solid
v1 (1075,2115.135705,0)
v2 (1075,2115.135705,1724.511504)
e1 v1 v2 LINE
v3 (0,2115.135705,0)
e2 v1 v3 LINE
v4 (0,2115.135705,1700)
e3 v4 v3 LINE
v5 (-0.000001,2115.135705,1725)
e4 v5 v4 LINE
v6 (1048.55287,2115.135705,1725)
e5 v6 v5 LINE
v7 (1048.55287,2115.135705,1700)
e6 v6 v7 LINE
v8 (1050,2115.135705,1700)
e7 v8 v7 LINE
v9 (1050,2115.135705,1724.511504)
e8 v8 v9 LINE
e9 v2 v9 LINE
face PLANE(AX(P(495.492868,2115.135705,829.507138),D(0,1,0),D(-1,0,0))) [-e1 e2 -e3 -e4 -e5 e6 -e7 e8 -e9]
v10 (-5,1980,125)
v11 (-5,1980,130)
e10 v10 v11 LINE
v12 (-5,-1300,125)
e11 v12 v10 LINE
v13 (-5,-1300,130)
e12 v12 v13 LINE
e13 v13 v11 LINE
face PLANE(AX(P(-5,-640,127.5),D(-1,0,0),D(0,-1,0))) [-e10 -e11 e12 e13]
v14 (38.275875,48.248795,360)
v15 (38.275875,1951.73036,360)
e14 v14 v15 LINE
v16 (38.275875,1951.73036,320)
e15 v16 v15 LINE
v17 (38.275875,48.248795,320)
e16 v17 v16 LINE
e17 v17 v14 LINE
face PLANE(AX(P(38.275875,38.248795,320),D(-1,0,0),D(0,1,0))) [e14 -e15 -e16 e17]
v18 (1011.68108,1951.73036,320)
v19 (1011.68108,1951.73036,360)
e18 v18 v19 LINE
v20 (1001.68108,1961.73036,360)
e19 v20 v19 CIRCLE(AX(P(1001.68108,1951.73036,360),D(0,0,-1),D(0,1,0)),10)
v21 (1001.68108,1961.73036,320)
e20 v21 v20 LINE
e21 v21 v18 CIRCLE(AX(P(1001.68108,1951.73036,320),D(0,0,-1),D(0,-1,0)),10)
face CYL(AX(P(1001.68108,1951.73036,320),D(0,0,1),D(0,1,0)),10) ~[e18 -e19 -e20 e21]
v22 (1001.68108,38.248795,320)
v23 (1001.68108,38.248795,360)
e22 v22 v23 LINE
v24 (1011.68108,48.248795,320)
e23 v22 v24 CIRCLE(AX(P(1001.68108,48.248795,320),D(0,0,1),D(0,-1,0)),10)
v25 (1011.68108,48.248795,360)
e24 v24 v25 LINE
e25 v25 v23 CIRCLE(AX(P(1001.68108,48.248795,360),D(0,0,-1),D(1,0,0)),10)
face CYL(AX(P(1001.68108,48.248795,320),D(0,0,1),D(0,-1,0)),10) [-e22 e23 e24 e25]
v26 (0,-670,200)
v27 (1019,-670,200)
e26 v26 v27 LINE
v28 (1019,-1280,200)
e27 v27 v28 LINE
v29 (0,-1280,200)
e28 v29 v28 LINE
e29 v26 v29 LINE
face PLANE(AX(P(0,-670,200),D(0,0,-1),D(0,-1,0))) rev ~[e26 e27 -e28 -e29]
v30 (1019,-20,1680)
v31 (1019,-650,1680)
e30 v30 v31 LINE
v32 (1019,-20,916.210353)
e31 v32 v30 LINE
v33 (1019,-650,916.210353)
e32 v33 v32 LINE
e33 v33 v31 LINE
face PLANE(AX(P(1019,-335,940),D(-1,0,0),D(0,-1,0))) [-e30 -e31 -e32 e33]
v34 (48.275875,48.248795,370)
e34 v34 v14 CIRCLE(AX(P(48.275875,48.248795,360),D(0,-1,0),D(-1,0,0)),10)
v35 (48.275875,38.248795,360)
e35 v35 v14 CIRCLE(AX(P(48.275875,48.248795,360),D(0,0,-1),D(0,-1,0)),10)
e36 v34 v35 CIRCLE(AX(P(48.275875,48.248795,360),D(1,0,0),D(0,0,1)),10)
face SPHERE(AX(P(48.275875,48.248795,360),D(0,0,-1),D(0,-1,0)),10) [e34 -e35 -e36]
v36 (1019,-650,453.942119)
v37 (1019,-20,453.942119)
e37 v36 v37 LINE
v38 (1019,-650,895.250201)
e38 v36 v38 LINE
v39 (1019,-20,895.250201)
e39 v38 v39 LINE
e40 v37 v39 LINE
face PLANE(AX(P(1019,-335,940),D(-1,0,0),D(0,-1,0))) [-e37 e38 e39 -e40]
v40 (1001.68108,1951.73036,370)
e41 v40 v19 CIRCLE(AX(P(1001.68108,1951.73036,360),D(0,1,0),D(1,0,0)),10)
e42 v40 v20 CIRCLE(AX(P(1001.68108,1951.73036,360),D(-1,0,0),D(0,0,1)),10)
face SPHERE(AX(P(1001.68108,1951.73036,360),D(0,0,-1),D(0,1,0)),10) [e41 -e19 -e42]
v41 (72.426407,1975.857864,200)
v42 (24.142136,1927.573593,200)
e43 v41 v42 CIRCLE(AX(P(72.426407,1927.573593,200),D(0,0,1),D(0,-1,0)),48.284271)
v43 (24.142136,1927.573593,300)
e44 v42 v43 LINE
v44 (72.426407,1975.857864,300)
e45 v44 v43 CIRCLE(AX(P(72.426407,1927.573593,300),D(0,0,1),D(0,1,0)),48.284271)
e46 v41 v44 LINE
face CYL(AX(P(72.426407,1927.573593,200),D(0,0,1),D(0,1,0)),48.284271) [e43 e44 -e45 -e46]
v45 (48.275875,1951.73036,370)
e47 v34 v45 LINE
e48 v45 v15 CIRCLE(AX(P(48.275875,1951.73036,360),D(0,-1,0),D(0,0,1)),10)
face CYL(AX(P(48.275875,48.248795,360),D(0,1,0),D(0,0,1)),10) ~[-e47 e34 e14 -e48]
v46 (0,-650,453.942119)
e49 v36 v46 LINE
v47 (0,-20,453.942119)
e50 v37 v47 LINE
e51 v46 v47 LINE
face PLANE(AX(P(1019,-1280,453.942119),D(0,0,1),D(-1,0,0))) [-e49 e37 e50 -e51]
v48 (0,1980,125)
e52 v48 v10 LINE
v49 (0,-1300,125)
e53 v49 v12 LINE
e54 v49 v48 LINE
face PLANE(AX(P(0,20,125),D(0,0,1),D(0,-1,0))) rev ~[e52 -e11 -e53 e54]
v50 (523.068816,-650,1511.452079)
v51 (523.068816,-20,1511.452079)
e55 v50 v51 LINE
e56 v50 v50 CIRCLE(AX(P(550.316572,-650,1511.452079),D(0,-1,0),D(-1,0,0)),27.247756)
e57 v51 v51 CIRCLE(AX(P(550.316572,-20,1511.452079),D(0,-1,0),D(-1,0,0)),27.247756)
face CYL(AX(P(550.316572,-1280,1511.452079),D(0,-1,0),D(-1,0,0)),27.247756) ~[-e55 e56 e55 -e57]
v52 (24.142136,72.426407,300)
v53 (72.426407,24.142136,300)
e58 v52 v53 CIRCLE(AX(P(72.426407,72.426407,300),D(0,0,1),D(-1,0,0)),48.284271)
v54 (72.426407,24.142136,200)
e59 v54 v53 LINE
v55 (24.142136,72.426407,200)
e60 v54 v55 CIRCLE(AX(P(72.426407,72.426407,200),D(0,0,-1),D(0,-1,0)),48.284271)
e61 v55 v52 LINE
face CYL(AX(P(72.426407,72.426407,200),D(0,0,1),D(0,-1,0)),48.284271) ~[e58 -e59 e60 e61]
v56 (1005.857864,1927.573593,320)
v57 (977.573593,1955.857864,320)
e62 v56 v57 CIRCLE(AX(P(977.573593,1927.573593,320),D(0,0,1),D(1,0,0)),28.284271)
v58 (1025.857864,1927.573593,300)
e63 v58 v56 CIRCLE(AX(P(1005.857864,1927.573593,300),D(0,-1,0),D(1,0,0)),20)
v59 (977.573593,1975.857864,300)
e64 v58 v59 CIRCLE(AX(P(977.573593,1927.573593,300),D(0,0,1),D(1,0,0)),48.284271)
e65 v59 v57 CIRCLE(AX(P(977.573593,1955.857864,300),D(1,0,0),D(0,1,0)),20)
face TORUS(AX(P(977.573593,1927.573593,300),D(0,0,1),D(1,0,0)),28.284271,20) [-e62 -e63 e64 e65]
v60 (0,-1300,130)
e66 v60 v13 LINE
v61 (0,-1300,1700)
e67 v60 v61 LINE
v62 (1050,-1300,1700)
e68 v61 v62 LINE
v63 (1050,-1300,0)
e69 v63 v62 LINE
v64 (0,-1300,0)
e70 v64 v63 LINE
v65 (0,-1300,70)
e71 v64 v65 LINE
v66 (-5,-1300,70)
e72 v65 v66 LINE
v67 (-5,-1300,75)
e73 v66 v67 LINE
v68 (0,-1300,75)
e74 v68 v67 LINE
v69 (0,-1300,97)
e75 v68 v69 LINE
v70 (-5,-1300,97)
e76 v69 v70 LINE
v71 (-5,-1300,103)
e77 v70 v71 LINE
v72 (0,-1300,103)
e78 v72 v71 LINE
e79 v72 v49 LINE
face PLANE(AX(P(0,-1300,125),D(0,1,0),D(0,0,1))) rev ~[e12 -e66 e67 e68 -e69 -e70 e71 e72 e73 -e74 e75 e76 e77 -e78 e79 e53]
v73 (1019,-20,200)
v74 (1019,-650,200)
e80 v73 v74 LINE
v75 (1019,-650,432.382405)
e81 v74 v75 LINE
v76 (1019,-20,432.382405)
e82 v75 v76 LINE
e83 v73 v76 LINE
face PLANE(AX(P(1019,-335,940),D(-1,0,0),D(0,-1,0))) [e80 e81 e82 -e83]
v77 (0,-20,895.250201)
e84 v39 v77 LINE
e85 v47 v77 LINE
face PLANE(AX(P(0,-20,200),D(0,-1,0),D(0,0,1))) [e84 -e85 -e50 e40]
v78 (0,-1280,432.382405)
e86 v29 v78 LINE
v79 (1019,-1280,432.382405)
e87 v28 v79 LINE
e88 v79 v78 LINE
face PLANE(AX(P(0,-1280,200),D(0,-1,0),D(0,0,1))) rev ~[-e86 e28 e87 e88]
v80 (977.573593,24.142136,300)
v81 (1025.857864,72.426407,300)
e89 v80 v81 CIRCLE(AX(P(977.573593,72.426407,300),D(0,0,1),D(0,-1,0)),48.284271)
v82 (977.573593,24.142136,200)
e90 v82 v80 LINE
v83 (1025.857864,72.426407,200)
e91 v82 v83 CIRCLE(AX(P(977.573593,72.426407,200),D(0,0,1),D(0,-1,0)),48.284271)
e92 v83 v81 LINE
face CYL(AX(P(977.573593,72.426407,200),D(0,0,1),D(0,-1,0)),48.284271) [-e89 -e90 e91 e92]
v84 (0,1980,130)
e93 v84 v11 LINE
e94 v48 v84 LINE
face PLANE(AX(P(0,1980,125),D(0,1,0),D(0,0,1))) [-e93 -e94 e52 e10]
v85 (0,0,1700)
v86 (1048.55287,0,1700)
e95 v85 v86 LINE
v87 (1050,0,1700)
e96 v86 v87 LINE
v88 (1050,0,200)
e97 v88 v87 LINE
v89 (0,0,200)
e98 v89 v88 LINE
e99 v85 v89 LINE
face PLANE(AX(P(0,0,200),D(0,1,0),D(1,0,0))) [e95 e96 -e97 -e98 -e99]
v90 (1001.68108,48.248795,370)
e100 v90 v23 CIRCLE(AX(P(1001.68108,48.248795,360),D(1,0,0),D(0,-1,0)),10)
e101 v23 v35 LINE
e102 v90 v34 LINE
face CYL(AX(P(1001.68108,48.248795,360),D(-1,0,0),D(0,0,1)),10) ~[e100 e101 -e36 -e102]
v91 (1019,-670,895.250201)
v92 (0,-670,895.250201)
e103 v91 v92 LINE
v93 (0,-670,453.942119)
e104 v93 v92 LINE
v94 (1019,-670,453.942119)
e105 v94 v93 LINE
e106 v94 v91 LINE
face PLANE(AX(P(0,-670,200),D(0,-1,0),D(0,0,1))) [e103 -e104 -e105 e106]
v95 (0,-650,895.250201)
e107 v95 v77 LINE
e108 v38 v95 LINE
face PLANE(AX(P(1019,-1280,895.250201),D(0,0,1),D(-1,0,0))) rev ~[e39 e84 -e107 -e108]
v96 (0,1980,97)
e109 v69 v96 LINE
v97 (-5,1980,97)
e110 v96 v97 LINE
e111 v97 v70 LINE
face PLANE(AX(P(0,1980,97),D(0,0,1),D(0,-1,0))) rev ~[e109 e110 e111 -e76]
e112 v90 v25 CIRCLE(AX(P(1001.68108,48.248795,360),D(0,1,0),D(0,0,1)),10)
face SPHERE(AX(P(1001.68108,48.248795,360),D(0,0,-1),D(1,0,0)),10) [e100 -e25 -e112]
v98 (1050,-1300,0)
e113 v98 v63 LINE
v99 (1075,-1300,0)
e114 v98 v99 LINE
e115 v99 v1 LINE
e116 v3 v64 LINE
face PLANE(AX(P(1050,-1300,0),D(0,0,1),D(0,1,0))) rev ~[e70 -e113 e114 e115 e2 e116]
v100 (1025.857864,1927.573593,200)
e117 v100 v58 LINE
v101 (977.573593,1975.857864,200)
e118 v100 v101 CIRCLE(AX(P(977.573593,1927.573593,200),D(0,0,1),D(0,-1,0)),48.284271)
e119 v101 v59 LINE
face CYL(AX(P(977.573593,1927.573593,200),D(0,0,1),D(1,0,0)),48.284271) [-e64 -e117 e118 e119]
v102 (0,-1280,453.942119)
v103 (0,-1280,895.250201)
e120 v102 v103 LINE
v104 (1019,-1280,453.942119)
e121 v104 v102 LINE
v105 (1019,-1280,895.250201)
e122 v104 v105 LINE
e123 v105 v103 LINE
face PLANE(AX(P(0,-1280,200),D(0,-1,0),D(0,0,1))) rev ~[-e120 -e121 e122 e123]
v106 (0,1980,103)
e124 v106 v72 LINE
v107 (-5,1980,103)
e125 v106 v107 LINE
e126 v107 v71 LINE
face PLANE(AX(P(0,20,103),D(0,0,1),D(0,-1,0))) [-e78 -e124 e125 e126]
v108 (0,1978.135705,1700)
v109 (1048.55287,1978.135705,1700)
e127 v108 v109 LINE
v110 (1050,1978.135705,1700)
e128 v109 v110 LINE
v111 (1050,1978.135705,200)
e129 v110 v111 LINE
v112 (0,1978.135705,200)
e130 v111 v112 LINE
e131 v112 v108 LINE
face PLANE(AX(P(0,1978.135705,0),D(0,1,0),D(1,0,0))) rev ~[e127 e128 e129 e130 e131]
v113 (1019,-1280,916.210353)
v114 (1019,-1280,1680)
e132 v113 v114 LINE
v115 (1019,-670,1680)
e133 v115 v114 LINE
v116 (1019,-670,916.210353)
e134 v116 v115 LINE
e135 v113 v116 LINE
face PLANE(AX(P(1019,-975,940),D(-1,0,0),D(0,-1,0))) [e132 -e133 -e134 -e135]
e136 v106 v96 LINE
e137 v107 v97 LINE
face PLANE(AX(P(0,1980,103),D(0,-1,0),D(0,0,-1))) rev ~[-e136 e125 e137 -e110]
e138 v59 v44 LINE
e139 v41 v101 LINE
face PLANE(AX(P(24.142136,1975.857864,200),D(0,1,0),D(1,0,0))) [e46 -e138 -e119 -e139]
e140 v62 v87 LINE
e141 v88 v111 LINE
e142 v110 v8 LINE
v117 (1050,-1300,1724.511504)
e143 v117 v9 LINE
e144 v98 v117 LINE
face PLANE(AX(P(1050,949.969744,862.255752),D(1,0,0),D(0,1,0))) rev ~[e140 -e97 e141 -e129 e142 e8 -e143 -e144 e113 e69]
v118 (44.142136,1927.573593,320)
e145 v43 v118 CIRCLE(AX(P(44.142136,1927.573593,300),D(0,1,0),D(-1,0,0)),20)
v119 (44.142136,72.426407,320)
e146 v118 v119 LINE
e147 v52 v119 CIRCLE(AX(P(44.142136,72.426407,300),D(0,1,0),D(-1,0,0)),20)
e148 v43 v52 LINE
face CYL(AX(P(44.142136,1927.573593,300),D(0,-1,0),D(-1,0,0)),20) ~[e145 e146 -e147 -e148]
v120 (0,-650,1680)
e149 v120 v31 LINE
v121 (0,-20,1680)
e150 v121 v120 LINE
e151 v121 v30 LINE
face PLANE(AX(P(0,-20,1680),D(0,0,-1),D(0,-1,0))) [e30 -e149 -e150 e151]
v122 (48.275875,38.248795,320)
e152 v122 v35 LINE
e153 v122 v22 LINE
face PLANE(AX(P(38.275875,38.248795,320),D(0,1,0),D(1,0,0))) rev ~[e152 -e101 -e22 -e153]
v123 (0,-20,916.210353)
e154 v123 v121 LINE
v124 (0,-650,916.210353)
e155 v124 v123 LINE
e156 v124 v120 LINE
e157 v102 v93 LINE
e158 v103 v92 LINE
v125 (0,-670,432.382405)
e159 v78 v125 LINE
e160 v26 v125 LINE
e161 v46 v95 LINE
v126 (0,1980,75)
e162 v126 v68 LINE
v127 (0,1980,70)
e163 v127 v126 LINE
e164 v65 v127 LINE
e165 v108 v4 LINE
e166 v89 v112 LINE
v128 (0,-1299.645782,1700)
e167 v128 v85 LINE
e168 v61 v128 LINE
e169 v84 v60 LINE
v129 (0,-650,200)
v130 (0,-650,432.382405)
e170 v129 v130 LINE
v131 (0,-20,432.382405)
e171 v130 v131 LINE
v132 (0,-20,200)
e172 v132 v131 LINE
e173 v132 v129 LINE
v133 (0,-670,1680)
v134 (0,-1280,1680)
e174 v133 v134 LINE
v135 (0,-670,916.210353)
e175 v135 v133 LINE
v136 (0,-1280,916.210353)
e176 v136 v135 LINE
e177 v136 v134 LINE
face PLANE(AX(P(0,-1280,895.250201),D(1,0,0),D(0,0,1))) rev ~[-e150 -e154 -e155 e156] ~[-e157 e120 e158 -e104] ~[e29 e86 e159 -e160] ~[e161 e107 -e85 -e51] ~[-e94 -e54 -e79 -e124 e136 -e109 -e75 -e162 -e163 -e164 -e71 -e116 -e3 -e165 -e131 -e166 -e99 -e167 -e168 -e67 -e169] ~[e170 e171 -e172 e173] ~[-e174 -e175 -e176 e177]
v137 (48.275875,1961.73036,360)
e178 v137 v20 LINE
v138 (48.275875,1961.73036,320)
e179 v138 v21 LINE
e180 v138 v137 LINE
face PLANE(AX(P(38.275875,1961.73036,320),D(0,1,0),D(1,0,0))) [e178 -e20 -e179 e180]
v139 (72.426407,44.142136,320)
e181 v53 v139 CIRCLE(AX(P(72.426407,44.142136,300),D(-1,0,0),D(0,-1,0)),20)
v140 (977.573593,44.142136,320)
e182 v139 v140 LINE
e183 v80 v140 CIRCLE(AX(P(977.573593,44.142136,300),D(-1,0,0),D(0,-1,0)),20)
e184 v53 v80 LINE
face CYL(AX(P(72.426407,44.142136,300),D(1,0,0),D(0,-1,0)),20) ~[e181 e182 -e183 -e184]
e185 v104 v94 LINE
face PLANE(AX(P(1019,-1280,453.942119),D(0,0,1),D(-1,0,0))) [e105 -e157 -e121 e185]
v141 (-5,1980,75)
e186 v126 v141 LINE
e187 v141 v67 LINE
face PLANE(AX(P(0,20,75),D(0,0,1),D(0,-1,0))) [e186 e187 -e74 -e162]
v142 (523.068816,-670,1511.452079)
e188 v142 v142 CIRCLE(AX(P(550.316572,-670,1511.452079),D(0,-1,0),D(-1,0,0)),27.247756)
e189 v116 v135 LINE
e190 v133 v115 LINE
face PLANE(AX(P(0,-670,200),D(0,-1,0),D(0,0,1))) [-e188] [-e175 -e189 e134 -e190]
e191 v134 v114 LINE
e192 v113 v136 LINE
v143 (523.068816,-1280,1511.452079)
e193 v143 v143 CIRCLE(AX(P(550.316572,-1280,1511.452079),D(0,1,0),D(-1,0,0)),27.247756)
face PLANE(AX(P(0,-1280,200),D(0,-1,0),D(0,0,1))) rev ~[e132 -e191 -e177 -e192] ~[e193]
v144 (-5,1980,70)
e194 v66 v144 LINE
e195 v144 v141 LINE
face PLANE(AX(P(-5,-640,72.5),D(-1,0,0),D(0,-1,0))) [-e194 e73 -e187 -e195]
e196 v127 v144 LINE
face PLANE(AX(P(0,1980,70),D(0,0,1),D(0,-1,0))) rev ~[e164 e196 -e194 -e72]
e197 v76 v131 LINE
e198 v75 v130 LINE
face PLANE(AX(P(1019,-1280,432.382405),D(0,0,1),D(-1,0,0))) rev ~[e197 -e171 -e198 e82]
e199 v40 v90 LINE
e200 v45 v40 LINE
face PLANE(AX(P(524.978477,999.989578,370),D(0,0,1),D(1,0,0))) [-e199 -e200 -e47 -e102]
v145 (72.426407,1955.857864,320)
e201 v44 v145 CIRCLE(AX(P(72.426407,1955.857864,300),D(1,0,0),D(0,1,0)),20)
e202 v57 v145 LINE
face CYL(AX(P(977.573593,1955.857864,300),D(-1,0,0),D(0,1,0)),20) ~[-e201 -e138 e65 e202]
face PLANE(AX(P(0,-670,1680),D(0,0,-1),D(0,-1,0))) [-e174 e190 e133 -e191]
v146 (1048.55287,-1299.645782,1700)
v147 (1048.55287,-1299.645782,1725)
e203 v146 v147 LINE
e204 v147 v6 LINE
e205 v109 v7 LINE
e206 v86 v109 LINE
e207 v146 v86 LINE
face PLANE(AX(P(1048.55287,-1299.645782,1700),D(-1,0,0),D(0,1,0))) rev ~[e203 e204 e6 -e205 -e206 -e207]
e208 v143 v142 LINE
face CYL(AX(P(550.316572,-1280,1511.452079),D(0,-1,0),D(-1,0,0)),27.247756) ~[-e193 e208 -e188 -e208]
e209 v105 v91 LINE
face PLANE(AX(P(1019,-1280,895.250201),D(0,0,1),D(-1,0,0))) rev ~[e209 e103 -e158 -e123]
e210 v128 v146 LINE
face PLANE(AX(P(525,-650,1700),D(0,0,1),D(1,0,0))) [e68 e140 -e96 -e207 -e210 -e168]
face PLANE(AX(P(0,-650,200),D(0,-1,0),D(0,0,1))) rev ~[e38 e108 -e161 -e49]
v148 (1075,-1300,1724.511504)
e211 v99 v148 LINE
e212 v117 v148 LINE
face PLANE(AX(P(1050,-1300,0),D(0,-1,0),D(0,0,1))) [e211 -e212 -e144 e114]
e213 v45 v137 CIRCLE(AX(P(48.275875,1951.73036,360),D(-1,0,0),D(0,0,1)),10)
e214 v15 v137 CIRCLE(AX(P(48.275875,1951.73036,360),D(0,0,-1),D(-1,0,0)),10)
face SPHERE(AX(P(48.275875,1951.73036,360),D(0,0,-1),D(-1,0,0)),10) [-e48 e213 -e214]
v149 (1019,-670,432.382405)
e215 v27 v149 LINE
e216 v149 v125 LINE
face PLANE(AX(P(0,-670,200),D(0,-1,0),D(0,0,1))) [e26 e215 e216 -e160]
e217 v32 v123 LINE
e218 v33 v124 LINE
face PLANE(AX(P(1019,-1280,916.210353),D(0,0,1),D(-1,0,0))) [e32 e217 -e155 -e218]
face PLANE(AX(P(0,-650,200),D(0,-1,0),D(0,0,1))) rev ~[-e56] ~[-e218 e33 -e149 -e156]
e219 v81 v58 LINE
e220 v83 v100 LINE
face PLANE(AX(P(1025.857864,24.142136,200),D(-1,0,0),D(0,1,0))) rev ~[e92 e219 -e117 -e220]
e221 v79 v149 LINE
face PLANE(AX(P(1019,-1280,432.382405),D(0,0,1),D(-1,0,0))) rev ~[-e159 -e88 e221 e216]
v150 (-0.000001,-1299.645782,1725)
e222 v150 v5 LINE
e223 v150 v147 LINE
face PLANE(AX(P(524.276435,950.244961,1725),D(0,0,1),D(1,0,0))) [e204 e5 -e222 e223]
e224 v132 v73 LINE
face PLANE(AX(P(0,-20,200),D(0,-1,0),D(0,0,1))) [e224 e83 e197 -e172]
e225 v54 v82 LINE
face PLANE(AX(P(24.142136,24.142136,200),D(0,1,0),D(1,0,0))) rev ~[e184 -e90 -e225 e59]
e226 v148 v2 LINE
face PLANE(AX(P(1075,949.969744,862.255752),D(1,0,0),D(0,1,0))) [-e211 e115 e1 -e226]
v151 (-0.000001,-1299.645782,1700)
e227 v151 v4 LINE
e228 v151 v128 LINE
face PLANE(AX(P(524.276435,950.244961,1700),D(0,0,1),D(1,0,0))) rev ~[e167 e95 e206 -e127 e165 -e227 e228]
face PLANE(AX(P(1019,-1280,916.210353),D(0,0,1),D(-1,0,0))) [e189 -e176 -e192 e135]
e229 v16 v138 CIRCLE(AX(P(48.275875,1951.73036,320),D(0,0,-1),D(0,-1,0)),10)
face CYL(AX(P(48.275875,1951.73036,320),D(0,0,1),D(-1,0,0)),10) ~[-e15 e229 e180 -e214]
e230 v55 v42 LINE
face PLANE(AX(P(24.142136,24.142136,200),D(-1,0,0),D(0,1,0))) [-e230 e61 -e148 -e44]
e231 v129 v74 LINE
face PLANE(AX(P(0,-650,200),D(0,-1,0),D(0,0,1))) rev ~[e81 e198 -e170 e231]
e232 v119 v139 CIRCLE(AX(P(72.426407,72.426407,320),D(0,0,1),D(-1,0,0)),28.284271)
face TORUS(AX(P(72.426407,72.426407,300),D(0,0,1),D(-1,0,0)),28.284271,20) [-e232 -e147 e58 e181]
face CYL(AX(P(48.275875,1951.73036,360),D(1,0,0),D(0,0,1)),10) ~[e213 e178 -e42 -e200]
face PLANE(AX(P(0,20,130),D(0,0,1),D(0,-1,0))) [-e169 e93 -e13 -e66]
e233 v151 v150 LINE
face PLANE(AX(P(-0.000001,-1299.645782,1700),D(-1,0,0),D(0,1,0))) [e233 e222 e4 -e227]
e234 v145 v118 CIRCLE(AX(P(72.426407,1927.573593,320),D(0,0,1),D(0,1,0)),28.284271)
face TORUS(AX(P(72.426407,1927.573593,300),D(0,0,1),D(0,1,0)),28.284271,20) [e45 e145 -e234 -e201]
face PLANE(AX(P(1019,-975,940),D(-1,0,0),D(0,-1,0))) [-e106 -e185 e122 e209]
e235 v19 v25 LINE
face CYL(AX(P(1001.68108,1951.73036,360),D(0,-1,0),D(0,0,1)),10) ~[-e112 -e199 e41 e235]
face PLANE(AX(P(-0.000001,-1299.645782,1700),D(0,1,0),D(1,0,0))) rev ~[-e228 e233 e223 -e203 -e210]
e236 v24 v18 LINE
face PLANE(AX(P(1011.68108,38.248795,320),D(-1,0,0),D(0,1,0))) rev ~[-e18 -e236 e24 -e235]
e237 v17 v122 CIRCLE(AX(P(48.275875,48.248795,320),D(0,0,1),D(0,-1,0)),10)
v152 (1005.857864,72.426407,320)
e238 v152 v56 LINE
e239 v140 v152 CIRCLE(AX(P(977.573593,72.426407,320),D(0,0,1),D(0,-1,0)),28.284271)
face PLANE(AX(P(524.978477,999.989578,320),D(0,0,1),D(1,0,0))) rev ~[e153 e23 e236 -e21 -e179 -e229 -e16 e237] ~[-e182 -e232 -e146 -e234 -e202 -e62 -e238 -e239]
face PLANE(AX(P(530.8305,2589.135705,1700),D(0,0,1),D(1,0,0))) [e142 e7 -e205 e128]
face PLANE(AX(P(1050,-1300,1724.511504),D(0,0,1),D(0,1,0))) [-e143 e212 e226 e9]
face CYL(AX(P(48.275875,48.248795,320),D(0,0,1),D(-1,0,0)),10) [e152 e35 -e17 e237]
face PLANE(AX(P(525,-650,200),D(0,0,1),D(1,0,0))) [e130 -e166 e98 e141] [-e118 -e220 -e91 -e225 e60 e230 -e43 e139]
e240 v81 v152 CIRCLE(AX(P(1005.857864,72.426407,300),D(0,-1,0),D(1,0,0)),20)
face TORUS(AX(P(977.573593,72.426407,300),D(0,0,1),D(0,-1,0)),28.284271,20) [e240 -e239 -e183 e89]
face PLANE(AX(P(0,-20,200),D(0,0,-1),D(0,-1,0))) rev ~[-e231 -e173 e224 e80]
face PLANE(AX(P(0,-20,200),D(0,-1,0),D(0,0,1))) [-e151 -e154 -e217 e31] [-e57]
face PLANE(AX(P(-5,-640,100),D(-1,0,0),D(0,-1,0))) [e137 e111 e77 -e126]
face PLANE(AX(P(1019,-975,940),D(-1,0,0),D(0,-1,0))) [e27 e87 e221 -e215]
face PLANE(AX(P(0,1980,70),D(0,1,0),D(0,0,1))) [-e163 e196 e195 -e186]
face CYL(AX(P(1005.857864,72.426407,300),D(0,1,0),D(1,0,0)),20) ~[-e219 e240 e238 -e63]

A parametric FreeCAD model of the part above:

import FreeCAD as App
import Part
import Sketcher
Q = App.Units.Quantity


def edges_at(feature, points):
    """Names of the edges that pass closest to the given points."""
    edges = feature.Shape.Edges
    near = lambda p: min(range(len(edges)), key=lambda i: edges[i].distToShape(Part.Vertex(*p))[0])
    return sorted({f"Edge{near(p) + 1}" for p in points})

doc = App.newDocument("Part")
body = doc.addObject("PartDesign::Body", "Body")

# Sketch on XY plane
sketch1 = body.newObject("Sketcher::SketchObject", "Sketch")
sketch1.AttachmentSupport = (doc.getObject("XY_Plane"), [""])
sketch1.MapMode = "FlatFace"
sketch1.addGeometry([
    Part.LineSegment(App.Vector(0, 2000, 0), App.Vector(0, 0, 0)),
    Part.LineSegment(App.Vector(0, 0, 0), App.Vector(1050, 0, 0)),
    Part.LineSegment(App.Vector(1050, 0, 0), App.Vector(1050, 2000, 0)),
    Part.LineSegment(App.Vector(1050, 2000, 0), App.Vector(0, 2000, 0)),
], False)
sketch1.addConstraint([
    Sketcher.Constraint("Coincident", 0, 2, 1, 1),
    Sketcher.Constraint("Coincident", 1, 2, 2, 1),
    Sketcher.Constraint("Coincident", 2, 2, 3, 1),
    Sketcher.Constraint("Coincident", 3, 2, 0, 1),
    Sketcher.Constraint("Vertical", 0),
    Sketcher.Constraint("Horizontal", 1),
    Sketcher.Constraint("Vertical", 2),
    Sketcher.Constraint("Horizontal", 3),
    Sketcher.Constraint("Coincident", 0, 2, -1, 1),
    Sketcher.Constraint("DistanceX", 1, 1, 1, 2, Q("1050 mm")),
    Sketcher.Constraint("DistanceY", 0, 2, 0, 1, Q("2000 mm")),
])
pad1 = body.newObject("PartDesign::Pad", "Pad")
pad1.Profile = sketch1
pad1.Length = 200
doc.recompute()

chamfer = body.newObject("PartDesign::Chamfer", "Chamfer")
chamfer.Base = (pad1, edges_at(pad1, [(1050, 2000, 100), (0, 2000, 100)]))
chamfer.Size = 20

# Sketch on XY plane
sketch2 = body.newObject("Sketcher::SketchObject", "Sketch001")
sketch2.AttachmentSupport = (doc.getObject("XY_Plane"), [""])
sketch2.MapMode = "FlatFace"
sketch2.AttachmentOffset = App.Placement(App.Vector(0, 0, 200), App.Rotation())
sketch2.addGeometry([
    Part.LineSegment(App.Vector(24, 1976, 0), App.Vector(24, 24, 0)),
    Part.LineSegment(App.Vector(24, 24, 0), App.Vector(1026, 24, 0)),
    Part.LineSegment(App.Vector(1026, 24, 0), App.Vector(1026, 1976, 0)),
    Part.LineSegment(App.Vector(1026, 1976, 0), App.Vector(24, 1976, 0)),
], False)
sketch2.addConstraint([
    Sketcher.Constraint("Coincident", 0, 2, 1, 1),
    Sketcher.Constraint("Coincident", 1, 2, 2, 1),
    Sketcher.Constraint("Coincident", 2, 2, 3, 1),
    Sketcher.Constraint("Coincident", 3, 2, 0, 1),
    Sketcher.Constraint("Vertical", 0),
    Sketcher.Constraint("Horizontal", 1),
    Sketcher.Constraint("Vertical", 2),
    Sketcher.Constraint("Horizontal", 3),
    Sketcher.Constraint("DistanceX", 1, 1, 1, 2, Q("1001.715728 mm")),
    Sketcher.Constraint("DistanceY", 0, 2, 0, 1, Q("1951.715728 mm")),
    Sketcher.Constraint("DistanceX", -1, 1, 0, 2, Q("24.142136 mm")),
    Sketcher.Constraint("DistanceY", -1, 1, 0, 2, Q("24.142136 mm")),
])
pad2 = body.newObject("PartDesign::Pad", "Pad001")
pad2.Profile = sketch2
pad2.Length = 120
doc.recompute()

fillet = body.newObject("PartDesign::Fillet", "Fillet")
fillet.Base = (pad2, edges_at(pad2, [
    (1025.858, 24.142, 260),
    (1025.858, 1975.858, 260),
    (24.142, 1975.858, 260),
    (24.142, 24.142, 260),
]))
fillet.Radius = 48.284271
doc.recompute()

fillet2 = body.newObject("PartDesign::Fillet", "Fillet001")
fillet2.Base = (fillet, edges_at(fillet, [
    (525, 24.142, 320),
    (38.284, 38.284, 320),
    (1011.716, 38.284, 320),
    (24.142, 1000, 320),
    (1025.858, 1000, 320),
    (38.284, 1961.716, 320),
    (1011.716, 1961.716, 320),
    (525, 1975.858, 320),
]))
fillet2.Radius = 20

# Sketch on XY plane
sketch3 = body.newObject("Sketcher::SketchObject", "Sketch002")
sketch3.AttachmentSupport = (doc.getObject("XY_Plane"), [""])
sketch3.MapMode = "FlatFace"
sketch3.AttachmentOffset = App.Placement(App.Vector(0, 0, 320), App.Rotation())
sketch3.addGeometry([
    Part.LineSegment(App.Vector(38, 1962, 0), App.Vector(38, 38, 0)),
    Part.LineSegment(App.Vector(38, 38, 0), App.Vector(1012, 38, 0)),
    Part.LineSegment(App.Vector(1012, 38, 0), App.Vector(1012, 1962, 0)),
    Part.LineSegment(App.Vector(1012, 1962, 0), App.Vector(38, 1962, 0)),
], False)
sketch3.addConstraint([
    Sketcher.Constraint("Coincident", 0, 2, 1, 1),
    Sketcher.Constraint("Coincident", 1, 2, 2, 1),
    Sketcher.Constraint("Coincident", 2, 2, 3, 1),
    Sketcher.Constraint("Coincident", 3, 2, 0, 1),
    Sketcher.Constraint("Vertical", 0),
    Sketcher.Constraint("Horizontal", 1),
    Sketcher.Constraint("Vertical", 2),
    Sketcher.Constraint("Horizontal", 3),
    Sketcher.Constraint("DistanceX", 1, 1, 1, 2, Q("973.405205 mm")),
    Sketcher.Constraint("DistanceY", 0, 2, 0, 1, Q("1923.481565 mm")),
    Sketcher.Constraint("DistanceX", -1, 1, 1, 2, Q("1011.68108 mm")),
    Sketcher.Constraint("DistanceY", -1, 1, 2, 2, Q("1961.73036 mm")),
])
pad3 = body.newObject("PartDesign::Pad", "Pad002")
pad3.Profile = sketch3
pad3.Length = 50
doc.recompute()

fillet3 = body.newObject("PartDesign::Fillet", "Fillet002")
fillet3.Base = (pad3, edges_at(pad3, [
    (1011.681, 38.249, 345),
    (1011.681, 1961.73, 345),
    (38.276, 1961.73, 345),
    (38.276, 38.249, 345),
]))
fillet3.Radius = 10
doc.recompute()

fillet4 = body.newObject("PartDesign::Fillet", "Fillet003")
fillet4.Base = (fillet3, edges_at(fillet3, [
    (524.978, 1961.73, 370),
    (1008.752, 1958.801, 370),
    (41.205, 1958.801, 370),
    (1011.681, 999.99, 370),
    (38.276, 999.99, 370),
    (1008.752, 41.178, 370),
    (41.205, 41.178, 370),
    (524.978, 38.249, 370),
]))
fillet4.Radius = 10

# Sketch on YZ plane
sketch4 = body.newObject("Sketcher::SketchObject", "Sketch003")
sketch4.AttachmentSupport = (doc.getObject("YZ_Plane"), [""])
sketch4.MapMode = "FlatFace"
sketch4.addGeometry([
    Part.LineSegment(App.Vector(1980, 75, 0), App.Vector(1980, 70, 0)),  # 0
    Part.LineSegment(App.Vector(1980, 70, 0), App.Vector(20, 70, 0)),  # 1
    Part.LineSegment(App.Vector(20, 70, 0), App.Vector(20, 75, 0)),  # 2
    Part.LineSegment(App.Vector(20, 75, 0), App.Vector(1980, 75, 0)),  # 3
    Part.LineSegment(App.Vector(1980, 130, 0), App.Vector(1980, 125, 0)),  # 4
    Part.LineSegment(App.Vector(1980, 125, 0), App.Vector(20, 125, 0)),  # 5
    Part.LineSegment(App.Vector(20, 125, 0), App.Vector(20, 130, 0)),  # 6
    Part.LineSegment(App.Vector(20, 130, 0), App.Vector(1980, 130, 0)),  # 7
    Part.LineSegment(App.Vector(1980, 97, 0), App.Vector(20, 97, 0)),  # 8
    Part.LineSegment(App.Vector(20, 97, 0), App.Vector(20, 103, 0)),  # 9
    Part.LineSegment(App.Vector(20, 103, 0), App.Vector(1980, 103, 0)),  # 10
    Part.LineSegment(App.Vector(1980, 103, 0), App.Vector(1980, 97, 0)),  # 11
], False)
sketch4.addConstraint([
    Sketcher.Constraint("Coincident", 0, 2, 1, 1),
    Sketcher.Constraint("Coincident", 1, 2, 2, 1),
    Sketcher.Constraint("Coincident", 2, 2, 3, 1),
    Sketcher.Constraint("Coincident", 3, 2, 0, 1),
    Sketcher.Constraint("Coincident", 4, 2, 5, 1),
    Sketcher.Constraint("Coincident", 5, 2, 6, 1),
    Sketcher.Constraint("Coincident", 6, 2, 7, 1),
    Sketcher.Constraint("Coincident", 7, 2, 4, 1),
    Sketcher.Constraint("Coincident", 8, 2, 9, 1),
    Sketcher.Constraint("Coincident", 9, 2, 10, 1),
    Sketcher.Constraint("Coincident", 10, 2, 11, 1),
    Sketcher.Constraint("Coincident", 11, 2, 8, 1),
    Sketcher.Constraint("Vertical", 0),
    Sketcher.Constraint("Horizontal", 1),
    Sketcher.Constraint("Vertical", 2),
    Sketcher.Constraint("Horizontal", 3),
    Sketcher.Constraint("Vertical", 4),
    Sketcher.Constraint("Horizontal", 5),
    Sketcher.Constraint("Vertical", 6),
    Sketcher.Constraint("Horizontal", 7),
    Sketcher.Constraint("Horizontal", 8),
    Sketcher.Constraint("Vertical", 9),
    Sketcher.Constraint("Horizontal", 10),
    Sketcher.Constraint("Vertical", 11),
    Sketcher.Constraint("Vertical", 3, 2, 4, 2),
    Sketcher.Constraint("Vertical", 2, 2, 5, 2),
    Sketcher.Constraint("Vertical", 6, 2, 8, 2),
    Sketcher.Constraint("Vertical", 7, 2, 10, 2),
    Sketcher.Constraint("Equal", 2, 4),
    Sketcher.Constraint("DistanceX", 1, 2, 1, 1, Q("1960 mm")),
    Sketcher.Constraint("DistanceY", 0, 2, 0, 1, Q("5 mm")),
    Sketcher.Constraint("DistanceY", 9, 1, 9, 2, Q("6 mm")),
    Sketcher.Constraint("DistanceX", -1, 1, 0, 2, Q("1980 mm")),
    Sketcher.Constraint("DistanceY", -1, 1, 0, 2, Q("70 mm")),
    Sketcher.Constraint("DistanceY", -1, 1, 4, 2, Q("125 mm")),
    Sketcher.Constraint("DistanceY", -1, 1, 8, 2, Q("97 mm")),
])
pad4 = body.newObject("PartDesign::Pad", "Pad003")
pad4.Profile = sketch4
pad4.Length = 5
pad4.Reversed = True

# Sketch on XY plane
sketch5 = body.newObject("Sketcher::SketchObject", "Sketch004")
sketch5.AttachmentSupport = (doc.getObject("XY_Plane"), [""])
sketch5.MapMode = "FlatFace"
sketch5.addGeometry([
    Part.LineSegment(App.Vector(0, 0, 0), App.Vector(0, -1300, 0)),
    Part.LineSegment(App.Vector(0, -1300, 0), App.Vector(1050, -1300, 0)),
    Part.LineSegment(App.Vector(1050, -1300, 0), App.Vector(1050, 0, 0)),
    Part.LineSegment(App.Vector(1050, 0, 0), App.Vector(0, 0, 0)),
], False)
sketch5.addConstraint([
    Sketcher.Constraint("Coincident", 0, 2, 1, 1),
    Sketcher.Constraint("Coincident", 1, 2, 2, 1),
    Sketcher.Constraint("Coincident", 2, 2, 3, 1),
    Sketcher.Constraint("Coincident", 3, 2, 0, 1),
    Sketcher.Constraint("Vertical", 0),
    Sketcher.Constraint("Horizontal", 1),
    Sketcher.Constraint("Vertical", 2),
    Sketcher.Constraint("Horizontal", 3),
    Sketcher.Constraint("Coincident", 3, 2, -1, 1),
    Sketcher.Constraint("DistanceX", 1, 1, 1, 2, Q("1050 mm")),
    Sketcher.Constraint("DistanceY", 0, 2, 0, 1, Q("1300 mm")),
])
pad5 = body.newObject("PartDesign::Pad", "Pad004")
pad5.Profile = sketch5
pad5.Length = 200

# Sketch on XY plane
sketch6 = body.newObject("Sketcher::SketchObject", "Sketch005")
sketch6.AttachmentSupport = (doc.getObject("XY_Plane"), [""])
sketch6.MapMode = "FlatFace"
sketch6.AttachmentOffset = App.Placement(App.Vector(0, 0, 200), App.Rotation())
sketch6.addGeometry([
    Part.LineSegment(App.Vector(0, 0, 0), App.Vector(0, -1300, 0)),
    Part.LineSegment(App.Vector(0, -1300, 0), App.Vector(1050, -1300, 0)),
    Part.LineSegment(App.Vector(1050, -1300, 0), App.Vector(1050, 0, 0)),
    Part.LineSegment(App.Vector(1050, 0, 0), App.Vector(0, 0, 0)),
], False)
sketch6.addConstraint([
    Sketcher.Constraint("Coincident", 0, 2, 1, 1),
    Sketcher.Constraint("Coincident", 1, 2, 2, 1),
    Sketcher.Constraint("Coincident", 2, 2, 3, 1),
    Sketcher.Constraint("Coincident", 3, 2, 0, 1),
    Sketcher.Constraint("Vertical", 0),
    Sketcher.Constraint("Horizontal", 1),
    Sketcher.Constraint("Vertical", 2),
    Sketcher.Constraint("Horizontal", 3),
    Sketcher.Constraint("Coincident", 3, 2, -1, 1),
    Sketcher.Constraint("DistanceX", 1, 1, 1, 2, Q("1050 mm")),
    Sketcher.Constraint("DistanceY", 0, 2, 0, 1, Q("1300 mm")),
])
pad6 = body.newObject("PartDesign::Pad", "Pad005")
pad6.Profile = sketch6
pad6.Length = 1500

# Sketch on YZ plane
sketch7 = body.newObject("Sketcher::SketchObject", "Sketch006")
sketch7.AttachmentSupport = (doc.getObject("YZ_Plane"), [""])
sketch7.MapMode = "FlatFace"
sketch7.addGeometry([
    Part.LineSegment(App.Vector(-670, 1680, 0), App.Vector(-670, 200, 0)),  # 0
    Part.LineSegment(App.Vector(-670, 200, 0), App.Vector(-1280, 200, 0)),  # 1
    Part.LineSegment(App.Vector(-1280, 200, 0), App.Vector(-1280, 1680, 0)),  # 2
    Part.LineSegment(App.Vector(-1280, 1680, 0), App.Vector(-670, 1680, 0)),  # 3
    Part.LineSegment(App.Vector(-20, 1680, 0), App.Vector(-20, 200, 0)),  # 4
    Part.LineSegment(App.Vector(-20, 200, 0), App.Vector(-650, 200, 0)),  # 5
    Part.LineSegment(App.Vector(-650, 200, 0), App.Vector(-650, 1680, 0)),  # 6
    Part.LineSegment(App.Vector(-650, 1680, 0), App.Vector(-20, 1680, 0)),  # 7
], False)
sketch7.addConstraint([
    Sketcher.Constraint("Coincident", 0, 2, 1, 1),
    Sketcher.Constraint("Coincident", 1, 2, 2, 1),
    Sketcher.Constraint("Coincident", 2, 2, 3, 1),
    Sketcher.Constraint("Coincident", 3, 2, 0, 1),
    Sketcher.Constraint("Coincident", 4, 2, 5, 1),
    Sketcher.Constraint("Coincident", 5, 2, 6, 1),
    Sketcher.Constraint("Coincident", 6, 2, 7, 1),
    Sketcher.Constraint("Coincident", 7, 2, 4, 1),
    Sketcher.Constraint("Vertical", 0),
    Sketcher.Constraint("Horizontal", 1),
    Sketcher.Constraint("Vertical", 2),
    Sketcher.Constraint("Horizontal", 3),
    Sketcher.Constraint("Vertical", 4),
    Sketcher.Constraint("Horizontal", 5),
    Sketcher.Constraint("Vertical", 6),
    Sketcher.Constraint("Horizontal", 7),
    Sketcher.Constraint("Horizontal", 1, 2, 4, 2),
    Sketcher.Constraint("Horizontal", 3, 2, 6, 2),
    Sketcher.Constraint("DistanceX", 1, 2, 1, 1, Q("610 mm")),
    Sketcher.Constraint("DistanceX", 5, 2, 5, 1, Q("630 mm")),
    Sketcher.Constraint("DistanceY", 0, 2, 0, 1, Q("1480 mm")),
    Sketcher.Constraint("DistanceX", 0, 2, -1, 1, Q("670 mm")),
    Sketcher.Constraint("DistanceY", -1, 1, 0, 2, Q("200 mm")),
    Sketcher.Constraint("DistanceX", 4, 2, -1, 1, Q("20 mm")),
])
pocket1 = body.newObject("PartDesign::Pocket", "Pocket")
pocket1.Profile = sketch7
pocket1.Length = 1019
pocket1.Reversed = True

# Sketch on YZ plane
sketch8 = body.newObject("Sketcher::SketchObject", "Sketch007")
sketch8.AttachmentSupport = (doc.getObject("YZ_Plane"), [""])
sketch8.MapMode = "FlatFace"
sketch8.addGeometry([
    Part.LineSegment(App.Vector(20, 130, 0), App.Vector(20, 125, 0)),  # 0
    Part.LineSegment(App.Vector(20, 125, 0), App.Vector(-1300, 125, 0)),  # 1
    Part.LineSegment(App.Vector(-1300, 125, 0), App.Vector(-1300, 130, 0)),  # 2
    Part.LineSegment(App.Vector(-1300, 130, 0), App.Vector(20, 130, 0)),  # 3
    Part.LineSegment(App.Vector(20, 103, 0), App.Vector(20, 97, 0)),  # 4
    Part.LineSegment(App.Vector(20, 97, 0), App.Vector(-1300, 97, 0)),  # 5
    Part.LineSegment(App.Vector(-1300, 97, 0), App.Vector(-1300, 103, 0)),  # 6
    Part.LineSegment(App.Vector(-1300, 103, 0), App.Vector(20, 103, 0)),  # 7
    Part.LineSegment(App.Vector(20, 75, 0), App.Vector(20, 70, 0)),  # 8
    Part.LineSegment(App.Vector(20, 70, 0), App.Vector(-1300, 70, 0)),  # 9
    Part.LineSegment(App.Vector(-1300, 70, 0), App.Vector(-1300, 75, 0)),  # 10
    Part.LineSegment(App.Vector(-1300, 75, 0), App.Vector(20, 75, 0)),  # 11
], False)
sketch8.addConstraint([
    Sketcher.Constraint("Coincident", 0, 2, 1, 1),
    Sketcher.Constraint("Coincident", 1, 2, 2, 1),
    Sketcher.Constraint("Coincident", 2, 2, 3, 1),
    Sketcher.Constraint("Coincident", 3, 2, 0, 1),
    Sketcher.Constraint("Coincident", 4, 2, 5, 1),
    Sketcher.Constraint("Coincident", 5, 2, 6, 1),
    Sketcher.Constraint("Coincident", 6, 2, 7, 1),
    Sketcher.Constraint("Coincident", 7, 2, 4, 1),
    Sketcher.Constraint("Coincident", 8, 2, 9, 1),
    Sketcher.Constraint("Coincident", 9, 2, 10, 1),
    Sketcher.Constraint("Coincident", 10, 2, 11, 1),
    Sketcher.Constraint("Coincident", 11, 2, 8, 1),
    Sketcher.Constraint("Vertical", 0),
    Sketcher.Constraint("Horizontal", 1),
    Sketcher.Constraint("Vertical", 2),
    Sketcher.Constraint("Horizontal", 3),
    Sketcher.Constraint("Vertical", 4),
    Sketcher.Constraint("Horizontal", 5),
    Sketcher.Constraint("Vertical", 6),
    Sketcher.Constraint("Horizontal", 7),
    Sketcher.Constraint("Vertical", 8),
    Sketcher.Constraint("Horizontal", 9),
    Sketcher.Constraint("Vertical", 10),
    Sketcher.Constraint("Horizontal", 11),
    Sketcher.Constraint("Vertical", 3, 2, 4, 2),
    Sketcher.Constraint("Vertical", 2, 2, 5, 2),
    Sketcher.Constraint("Vertical", 7, 2, 8, 2),
    Sketcher.Constraint("Vertical", 6, 2, 9, 2),
    Sketcher.Constraint("Equal", 2, 8),
    Sketcher.Constraint("DistanceX", 1, 2, 1, 1, Q("1320 mm")),
    Sketcher.Constraint("DistanceY", 0, 2, 0, 1, Q("5 mm")),
    Sketcher.Constraint("DistanceY", 4, 2, 4, 1, Q("6 mm")),
    Sketcher.Constraint("DistanceX", -1, 1, 0, 2, Q("20 mm")),
    Sketcher.Constraint("DistanceY", -1, 1, 0, 2, Q("125 mm")),
    Sketcher.Constraint("DistanceY", -1, 1, 4, 2, Q("97 mm")),
    Sketcher.Constraint("DistanceY", -1, 1, 8, 2, Q("70 mm")),
])
pad7 = body.newObject("PartDesign::Pad", "Pad006")
pad7.Profile = sketch8
pad7.Length = 5
pad7.Reversed = True

# Sketch on XY plane
sketch9 = body.newObject("Sketcher::SketchObject", "Sketch008")
sketch9.AttachmentSupport = (doc.getObject("XY_Plane"), [""])
sketch9.MapMode = "FlatFace"
sketch9.addGeometry([
    Part.LineSegment(App.Vector(0, 3200, 0), App.Vector(0, 1978, 0)),
    Part.LineSegment(App.Vector(0, 1978, 0), App.Vector(1062, 1978, 0)),
    Part.LineSegment(App.Vector(1062, 1978, 0), App.Vector(1062, 3200, 0)),
    Part.LineSegment(App.Vector(1062, 3200, 0), App.Vector(0, 3200, 0)),
], False)
sketch9.addConstraint([
    Sketcher.Constraint("Coincident", 0, 2, 1, 1),
    Sketcher.Constraint("Coincident", 1, 2, 2, 1),
    Sketcher.Constraint("Coincident", 2, 2, 3, 1),
    Sketcher.Constraint("Coincident", 3, 2, 0, 1),
    Sketcher.Constraint("Vertical", 0),
    Sketcher.Constraint("Horizontal", 1),
    Sketcher.Constraint("Vertical", 2),
    Sketcher.Constraint("Horizontal", 3),
    Sketcher.Constraint("PointOnObject", 0, 2, -2),
    Sketcher.Constraint("DistanceY", 0, 2, 0, 1, Q("1222 mm")),
    Sketcher.Constraint("DistanceX", 1, 1, 1, 2, Q("1061.661 mm")),
    Sketcher.Constraint("DistanceY", -1, 1, 0, 2, Q("1978.135705 mm")),
])
pad8 = body.newObject("PartDesign::Pad", "Pad007")
pad8.Profile = sketch9
pad8.Length = 1700

# Sketch on XZ plane
sketch10 = body.newObject("Sketcher::SketchObject", "Sketch009")
sketch10.AttachmentSupport = (doc.getObject("XZ_Plane"), [""])
sketch10.MapMode = "FlatFace"
sketch10.AttachmentOffset = App.Placement(App.Vector(0, 0, -3200.135705), App.Rotation())
sketch10.addGeometry([
    Part.LineSegment(App.Vector(323, 1700, 0), App.Vector(323, 0, 0)),  # 0
    Part.LineSegment(App.Vector(323, 0, 0), App.Vector(287, 0, 0)),  # 1
    Part.LineSegment(App.Vector(287, 0, 0), App.Vector(287, 1700, 0)),  # 2
    Part.LineSegment(App.Vector(287, 1700, 0), App.Vector(323, 1700, 0)),  # 3
    Part.LineSegment(App.Vector(715, 1700, 0), App.Vector(715, 0, 0)),  # 4
    Part.LineSegment(App.Vector(715, 0, 0), App.Vector(676, 0, 0)),  # 5
    Part.LineSegment(App.Vector(676, 0, 0), App.Vector(676, 1700, 0)),  # 6
    Part.LineSegment(App.Vector(676, 1700, 0), App.Vector(715, 1700, 0)),  # 7
], False)
sketch10.addConstraint([
    Sketcher.Constraint("Coincident", 0, 2, 1, 1),
    Sketcher.Constraint("Coincident", 1, 2, 2, 1),
    Sketcher.Constraint("Coincident", 2, 2, 3, 1),
    Sketcher.Constraint("Coincident", 3, 2, 0, 1),
    Sketcher.Constraint("Coincident", 4, 2, 5, 1),
    Sketcher.Constraint("Coincident", 5, 2, 6, 1),
    Sketcher.Constraint("Coincident", 6, 2, 7, 1),
    Sketcher.Constraint("Coincident", 7, 2, 4, 1),
    Sketcher.Constraint("Vertical", 0),
    Sketcher.Constraint("Horizontal", 1),
    Sketcher.Constraint("Vertical", 2),
    Sketcher.Constraint("Horizontal", 3),
    Sketcher.Constraint("Vertical", 4),
    Sketcher.Constraint("Horizontal", 5),
    Sketcher.Constraint("Vertical", 6),
    Sketcher.Constraint("Horizontal", 7),
    Sketcher.Constraint("PointOnObject", 0, 2, -1),
    Sketcher.Constraint("PointOnObject", 4, 2, -1),
    Sketcher.Constraint("Horizontal", 3, 2, 6, 2),
    Sketcher.Constraint("DistanceY", 0, 2, 0, 1, Q("1700 mm")),
    Sketcher.Constraint("DistanceX", 1, 2, 1, 1, Q("35.6673 mm")),
    Sketcher.Constraint("DistanceX", 5, 2, 5, 1, Q("39.648295 mm")),
    Sketcher.Constraint("DistanceX", -1, 1, 5, 2, Q("675.831138 mm")),
    Sketcher.Constraint("DistanceX", -1, 1, 0, 2, Q("322.936356 mm")),
])
pad9 = body.newObject("PartDesign::Pad", "Pad008")
pad9.Profile = sketch10
pad9.Length = 95
pad9.Reversed = True

# Sketch on YZ plane
sketch11 = body.newObject("Sketcher::SketchObject", "Sketch010")
sketch11.AttachmentSupport = (doc.getObject("YZ_Plane"), [""])
sketch11.MapMode = "FlatFace"
sketch11.AttachmentOffset = App.Placement(App.Vector(0, 0, 675.831139), App.Rotation())
sketch11.addGeometry([
    Part.Circle(App.Vector(3253, 135, 0), App.Vector(0, 0, 1), 18),  # 0
    Part.Circle(App.Vector(3254, 223, 0), App.Vector(0, 0, 1), 26),  # 1
    Part.Circle(App.Vector(3248, 335, 0), App.Vector(0, 0, 1), 28),  # 2
    Part.Circle(App.Vector(3250, 494, 0), App.Vector(0, 0, 1), 25),  # 3
    Part.Circle(App.Vector(3253, 419, 0), App.Vector(0, 0, 1), 22),  # 4
    Part.Circle(App.Vector(3253, 580, 0), App.Vector(0, 0, 1), 27),  # 5
    Part.Circle(App.Vector(3252, 679, 0), App.Vector(0, 0, 1), 27),  # 6
    Part.Circle(App.Vector(3255, 785, 0), App.Vector(0, 0, 1), 30),  # 7
    Part.Circle(App.Vector(3254, 916, 0), App.Vector(0, 0, 1), 35),  # 8
    Part.Circle(App.Vector(3240, 1025, 0), App.Vector(0, 0, 1), 18),  # 9
    Part.Circle(App.Vector(3245, 1184, 0), App.Vector(0, 0, 1), 24),  # 10
    Part.Circle(App.Vector(3252, 1321, 0), App.Vector(0, 0, 1), 26),  # 11
    Part.Circle(App.Vector(3256, 1434, 0), App.Vector(0, 0, 1), 18),  # 12
    Part.Circle(App.Vector(3247, 1505, 0), App.Vector(0, 0, 1), 19),  # 13
    Part.Circle(App.Vector(3262, 1575, 0), App.Vector(0, 0, 1), 20),  # 14
], False)
sketch11.addConstraint([
    Sketcher.Constraint("Diameter", 14, Q("40 mm")),
    Sketcher.Constraint("Diameter", 2, Q("56.98344 mm")),
    Sketcher.Constraint("Diameter", 11, Q("52.98328 mm")),
    Sketcher.Constraint("Diameter", 12, Q("36.743382 mm")),
    Sketcher.Constraint("Diameter", 0, Q("35.350262 mm")),
    Sketcher.Constraint("Diameter", 1, Q("52.982836 mm")),
    Sketcher.Constraint("Diameter", 3, Q("50.922882 mm")),
    Sketcher.Constraint("Diameter", 4, Q("44.244536 mm")),
    Sketcher.Constraint("Diameter", 5, Q("53.580694 mm")),
    Sketcher.Constraint("Diameter", 6, Q("53.689968 mm")),
    Sketcher.Constraint("Diameter", 7, Q("59.711984 mm")),
    Sketcher.Constraint("Diameter", 8, Q("69.046856 mm")),
    Sketcher.Constraint("Diameter", 9, Q("36.966416 mm")),
    Sketcher.Constraint("Diameter", 10, Q("48.873126 mm")),
    Sketcher.Constraint("Diameter", 13, Q("38.270056 mm")),
    Sketcher.Constraint("DistanceY", -1, 1, 8, 3, Q("915.7977 mm")),
    Sketcher.Constraint("DistanceX", 2, 3, 3, 3, Q("1.476201 mm")),
    Sketcher.Constraint("DistanceX", 0, 3, 5, 3, Q("0.515802 mm")),
    Sketcher.Constraint("DistanceY", 0, 3, 5, 3, Q("444.964899 mm")),
    Sketcher.Constraint("DistanceX", 6, 3, 7, 3, Q("3.629701 mm")),
    Sketcher.Constraint("DistanceY", 5, 3, 7, 3, Q("204.905501 mm")),
    Sketcher.Constraint("DistanceX", 10, 3, 8, 3, Q("9.015702 mm")),
    Sketcher.Constraint("DistanceY", 6, 3, 10, 3, Q("505.0877 mm")),
    Sketcher.Constraint("DistanceX", 12, 3, 14, 3, Q("6.214501 mm")),
    Sketcher.Constraint("DistanceX", -1, 1, 0, 3, Q("3252.88574 mm")),
    Sketcher.Constraint("DistanceY", -1, 1, 0, 3, Q("135.192228 mm")),
    Sketcher.Constraint("DistanceY", -1, 1, 2, 3, Q("335.374969 mm")),
    Sketcher.Constraint("DistanceX", -1, 1, 3, 3, Q("3249.734309 mm")),
    Sketcher.Constraint("DistanceY", -1, 1, 3, 3, Q("494.146231 mm")),
    Sketcher.Constraint("DistanceX", -1, 1, 4, 3, Q("3252.811319 mm")),
    Sketcher.Constraint("DistanceY", -1, 1, 6, 3, Q("678.684019 mm")),
    Sketcher.Constraint("DistanceX", -1, 1, 8, 3, Q("3254.409769 mm")),
    Sketcher.Constraint("DistanceX", -1, 1, 9, 3, Q("3239.505991 mm")),
    Sketcher.Constraint("DistanceY", -1, 1, 12, 3, Q("1433.706561 mm")),
    Sketcher.Constraint("DistanceY", -1, 1, 13, 3, Q("1505.486339 mm")),
    Sketcher.Constraint("DistanceY", -1, 1, 14, 3, Q("1574.563252 mm")),
    Sketcher.Constraint("DistanceY", 0, 3, 1, 3, Q("87.483549 mm")),
    Sketcher.Constraint("DistanceX", 2, 3, 1, 3, Q("6.233588 mm")),
    Sketcher.Constraint("DistanceX", 6, 3, 5, 3, Q("1.649279 mm")),
    Sketcher.Constraint("DistanceY", 5, 3, 9, 3, Q("445.089489 mm")),
    Sketcher.Constraint("DistanceX", 9, 3, 11, 3, Q("12.256352 mm")),
    Sketcher.Constraint("DistanceY", 9, 3, 11, 3, Q("295.639389 mm")),
    Sketcher.Constraint("DistanceX", 11, 3, 12, 3, Q("3.765461 mm")),
    Sketcher.Constraint("DistanceX", 13, 3, 12, 3, Q("8.953291 mm")),
    Sketcher.Constraint("DistanceY", -1, 1, 4, 3, Q("419.299844 mm")),
])
pad10 = body.newObject("PartDesign::Pad", "Pad009")
pad10.Profile = sketch11
pad10.Length = 365
pad10.Reversed = True

# Sketch on XY plane
sketch12 = body.newObject("Sketcher::SketchObject", "Sketch011")
sketch12.AttachmentSupport = (doc.getObject("XY_Plane"), [""])
sketch12.MapMode = "FlatFace"
sketch12.AttachmentOffset = App.Placement(App.Vector(0, 0, 1700), App.Rotation())
sketch12.addGeometry([
    Part.LineSegment(App.Vector(0, 3200, 0), App.Vector(0, -1300, 0)),
    Part.LineSegment(App.Vector(0, -1300, 0), App.Vector(1049, -1300, 0)),
    Part.LineSegment(App.Vector(1049, -1300, 0), App.Vector(1049, 3200, 0)),
    Part.LineSegment(App.Vector(1049, 3200, 0), App.Vector(0, 3200, 0)),
], False)
sketch12.addConstraint([
    Sketcher.Constraint("Coincident", 0, 2, 1, 1),
    Sketcher.Constraint("Coincident", 1, 2, 2, 1),
    Sketcher.Constraint("Coincident", 2, 2, 3, 1),
    Sketcher.Constraint("Coincident", 3, 2, 0, 1),
    Sketcher.Constraint("Vertical", 0),
    Sketcher.Constraint("Horizontal", 1),
    Sketcher.Constraint("Vertical", 2),
    Sketcher.Constraint("Horizontal", 3),
    Sketcher.Constraint("PointOnObject", 0, 2, -2),
    Sketcher.Constraint("DistanceX", 1, 1, 1, 2, Q("1048.552871 mm")),
    Sketcher.Constraint("DistanceY", 0, 2, 0, 1, Q("4499.781487 mm")),
    Sketcher.Constraint("DistanceY", 0, 2, -1, 1, Q("1299.645782 mm")),
])
pad11 = body.newObject("PartDesign::Pad", "Pad010")
pad11.Profile = sketch12
pad11.Length = 25

# Sketch on YZ plane
sketch13 = body.newObject("Sketcher::SketchObject", "Sketch012")
sketch13.AttachmentSupport = (doc.getObject("YZ_Plane"), [""])
sketch13.MapMode = "FlatFace"
sketch13.AttachmentOffset = App.Placement(App.Vector(0, 0, 1050), App.Rotation())
sketch13.addGeometry([
    Part.LineSegment(App.Vector(-1300, 1725, 0), App.Vector(-1300, 0, 0)),
    Part.LineSegment(App.Vector(-1300, 0, 0), App.Vector(3200, 0, 0)),
    Part.LineSegment(App.Vector(3200, 0, 0), App.Vector(3200, 1725, 0)),
    Part.LineSegment(App.Vector(3200, 1725, 0), App.Vector(-1300, 1725, 0)),
], False)
sketch13.addConstraint([
    Sketcher.Constraint("Coincident", 0, 2, 1, 1),
    Sketcher.Constraint("Coincident", 1, 2, 2, 1),
    Sketcher.Constraint("Coincident", 2, 2, 3, 1),
    Sketcher.Constraint("Coincident", 3, 2, 0, 1),
    Sketcher.Constraint("Vertical", 0),
    Sketcher.Constraint("Horizontal", 1),
    Sketcher.Constraint("Vertical", 2),
    Sketcher.Constraint("Horizontal", 3),
    Sketcher.Constraint("PointOnObject", 0, 2, -1),
    Sketcher.Constraint("DistanceX", 0, 2, -1, 1, Q("1300 mm")),
    Sketcher.Constraint("DistanceX", 1, 1, 1, 2, Q("4499.939489 mm")),
    Sketcher.Constraint("DistanceY", 0, 2, 0, 1, Q("1724.511504 mm")),
])
pad12 = body.newObject("PartDesign::Pad", "Pad011")
pad12.Profile = sketch13
pad12.Length = 25

# Sketch on XZ plane
sketch14 = body.newObject("Sketcher::SketchObject", "Sketch013")
sketch14.AttachmentSupport = (doc.getObject("XZ_Plane"), [""])
sketch14.MapMode = "FlatFace"
sketch14.AttachmentOffset = App.Placement(App.Vector(0, 0, -3295.135705), App.Rotation())
sketch14.addGeometry([
    Part.LineSegment(App.Vector(1123, 1753, 0), App.Vector(1123, -94, 0)),
    Part.LineSegment(App.Vector(1123, -94, 0), App.Vector(-133, -94, 0)),
    Part.LineSegment(App.Vector(-133, -94, 0), App.Vector(-133, 1753, 0)),
    Part.LineSegment(App.Vector(-133, 1753, 0), App.Vector(1123, 1753, 0)),
], False)
sketch14.addConstraint([
    Sketcher.Constraint("Coincident", 0, 2, 1, 1),
    Sketcher.Constraint("Coincident", 1, 2, 2, 1),
    Sketcher.Constraint("Coincident", 2, 2, 3, 1),
    Sketcher.Constraint("Coincident", 3, 2, 0, 1),
    Sketcher.Constraint("Vertical", 0),
    Sketcher.Constraint("Horizontal", 1),
    Sketcher.Constraint("Vertical", 2),
    Sketcher.Constraint("Horizontal", 3),
    Sketcher.Constraint("DistanceX", 1, 2, -1, 1, Q("132.504001 mm")),
    Sketcher.Constraint("DistanceX", 1, 2, 1, 1, Q("1255.993739 mm")),
    Sketcher.Constraint("DistanceY", 0, 2, 0, 1, Q("1847.933241 mm")),
    Sketcher.Constraint("DistanceY", -1, 1, 2, 2, Q("1753.473759 mm")),
])
pocket2 = body.newObject("PartDesign::Pocket", "Pocket001")
pocket2.Profile = sketch14
pocket2.Length = 1180
pocket2.Reversed = True

# Sketch on XZ plane
sketch15 = body.newObject("Sketcher::SketchObject", "Sketch014")
sketch15.AttachmentSupport = (doc.getObject("XZ_Plane"), [""])
sketch15.MapMode = "FlatFace"
sketch15.AttachmentOffset = App.Placement(App.Vector(0, 0, 1280), App.Rotation())
sketch15.addGeometry(Part.Circle(App.Vector(550, 1511, 0), App.Vector(0, 0, 1), 27), False)
sketch15.addConstraint([
    Sketcher.Constraint("Diameter", 0, Q("54.495512 mm")),
    Sketcher.Constraint("DistanceX", -1, 1, 0, 3, Q("550.316572 mm")),
    Sketcher.Constraint("DistanceY", -1, 1, 0, 3, Q("1511.452079 mm")),
])
pad13 = body.newObject("PartDesign::Pad", "Pad012")
pad13.Profile = sketch15
pad13.Length = 1280
pad13.Reversed = True

# Sketch on XZ plane
sketch16 = body.newObject("Sketcher::SketchObject", "Sketch015")
sketch16.AttachmentSupport = (doc.getObject("XZ_Plane"), [""])
sketch16.MapMode = "FlatFace"
sketch16.AttachmentOffset = App.Placement(App.Vector(0, 0, 1280), App.Rotation())
sketch16.addGeometry([
    Part.LineSegment(App.Vector(1019, 454, 0), App.Vector(1019, 432, 0)),
    Part.LineSegment(App.Vector(1019, 432, 0), App.Vector(0, 432, 0)),
    Part.LineSegment(App.Vector(0, 432, 0), App.Vector(0, 454, 0)),
    Part.LineSegment(App.Vector(0, 454, 0), App.Vector(1019, 454, 0)),
], False)
sketch16.addConstraint([
    Sketcher.Constraint("Coincident", 0, 2, 1, 1),
    Sketcher.Constraint("Coincident", 1, 2, 2, 1),
    Sketcher.Constraint("Coincident", 2, 2, 3, 1),
    Sketcher.Constraint("Coincident", 3, 2, 0, 1),
    Sketcher.Constraint("Vertical", 0),
    Sketcher.Constraint("Horizontal", 1),
    Sketcher.Constraint("Vertical", 2),
    Sketcher.Constraint("Horizontal", 3),
    Sketcher.Constraint("PointOnObject", 1, 2, -2),
    Sketcher.Constraint("DistanceX", 1, 2, 1, 1, Q("1019 mm")),
    Sketcher.Constraint("DistanceY", 0, 2, 0, 1, Q("21.559715 mm")),
    Sketcher.Constraint("DistanceY", -1, 1, 2, 2, Q("453.942119 mm")),
])
pad14 = body.newObject("PartDesign::Pad", "Pad013")
pad14.Profile = sketch16
pad14.Length = 1272
pad14.Reversed = True

# Sketch on XZ plane
sketch17 = body.newObject("Sketcher::SketchObject", "Sketch016")
sketch17.AttachmentSupport = (doc.getObject("XZ_Plane"), [""])
sketch17.MapMode = "FlatFace"
sketch17.AttachmentOffset = App.Placement(App.Vector(0, 0, 1280), App.Rotation())
sketch17.addGeometry([
    Part.LineSegment(App.Vector(1019, 916, 0), App.Vector(1019, 895, 0)),
    Part.LineSegment(App.Vector(1019, 895, 0), App.Vector(0, 895, 0)),
    Part.LineSegment(App.Vector(0, 895, 0), App.Vector(0, 916, 0)),
    Part.LineSegment(App.Vector(0, 916, 0), App.Vector(1019, 916, 0)),
], False)
sketch17.addConstraint([
    Sketcher.Constraint("Coincident", 0, 2, 1, 1),
    Sketcher.Constraint("Coincident", 1, 2, 2, 1),
    Sketcher.Constraint("Coincident", 2, 2, 3, 1),
    Sketcher.Constraint("Coincident", 3, 2, 0, 1),
    Sketcher.Constraint("Vertical", 0),
    Sketcher.Constraint("Horizontal", 1),
    Sketcher.Constraint("Vertical", 2),
    Sketcher.Constraint("Horizontal", 3),
    Sketcher.Constraint("PointOnObject", 1, 2, -2),
    Sketcher.Constraint("DistanceX", 1, 2, 1, 1, Q("1019 mm")),
    Sketcher.Constraint("DistanceY", -1, 1, 0, 2, Q("895.250201 mm")),
    Sketcher.Constraint("DistanceY", 0, 2, 0, 1, Q("20.960152 mm")),
])
pad15 = body.newObject("PartDesign::Pad", "Pad014")
pad15.Profile = sketch17
pad15.Length = 1280
pad15.Reversed = True

doc.recompute()
